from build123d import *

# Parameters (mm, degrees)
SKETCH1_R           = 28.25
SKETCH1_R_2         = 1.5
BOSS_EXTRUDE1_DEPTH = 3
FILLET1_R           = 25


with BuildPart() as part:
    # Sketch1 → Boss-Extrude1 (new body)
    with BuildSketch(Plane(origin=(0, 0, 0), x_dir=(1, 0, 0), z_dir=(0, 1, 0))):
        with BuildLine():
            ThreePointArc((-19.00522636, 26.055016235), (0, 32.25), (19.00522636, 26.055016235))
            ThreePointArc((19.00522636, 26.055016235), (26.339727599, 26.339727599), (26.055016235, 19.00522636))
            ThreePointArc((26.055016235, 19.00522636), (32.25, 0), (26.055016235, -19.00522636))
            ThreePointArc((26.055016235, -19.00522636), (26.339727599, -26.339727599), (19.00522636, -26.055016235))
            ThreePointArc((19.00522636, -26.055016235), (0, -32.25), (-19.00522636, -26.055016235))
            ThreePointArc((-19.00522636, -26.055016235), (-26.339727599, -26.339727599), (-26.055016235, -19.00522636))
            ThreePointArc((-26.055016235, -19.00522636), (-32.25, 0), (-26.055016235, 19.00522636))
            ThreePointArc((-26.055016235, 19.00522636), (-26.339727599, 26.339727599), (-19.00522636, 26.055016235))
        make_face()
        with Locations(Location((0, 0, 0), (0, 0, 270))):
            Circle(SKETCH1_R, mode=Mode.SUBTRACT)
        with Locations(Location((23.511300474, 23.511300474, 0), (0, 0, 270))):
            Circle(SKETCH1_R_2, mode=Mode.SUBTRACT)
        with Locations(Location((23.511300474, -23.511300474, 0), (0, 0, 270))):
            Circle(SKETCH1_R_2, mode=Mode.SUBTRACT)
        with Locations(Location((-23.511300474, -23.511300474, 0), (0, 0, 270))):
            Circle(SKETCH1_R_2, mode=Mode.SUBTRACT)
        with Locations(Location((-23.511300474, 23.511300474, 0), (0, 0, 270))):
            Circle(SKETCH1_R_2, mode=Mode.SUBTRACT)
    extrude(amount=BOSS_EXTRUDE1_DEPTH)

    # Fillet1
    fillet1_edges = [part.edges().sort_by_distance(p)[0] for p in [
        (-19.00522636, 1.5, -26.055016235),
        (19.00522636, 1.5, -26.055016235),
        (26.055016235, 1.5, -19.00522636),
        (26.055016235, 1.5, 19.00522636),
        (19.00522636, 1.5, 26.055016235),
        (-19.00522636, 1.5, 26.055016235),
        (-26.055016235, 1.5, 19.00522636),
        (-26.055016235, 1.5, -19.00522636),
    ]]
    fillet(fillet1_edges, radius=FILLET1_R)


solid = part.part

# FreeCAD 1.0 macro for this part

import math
import FreeCAD as App
import Part
import Sketcher

V = App.Vector
Q = App.Units.Quantity


def edges_at(feature, points):
    """Names of the edges that pass closest to the given points."""
    edges = feature.Shape.Edges
    near = lambda p: min(range(len(edges)), key=lambda i: edges[i].distToShape(Part.Vertex(*p))[0])
    return sorted({f"Edge{near(p) + 1}" for p in points})

doc = App.newDocument("Part")
body = doc.addObject("PartDesign::Body", "Body")

# Sketch on XZ plane
sketch1 = body.newObject("Sketcher::SketchObject", "Sketch")
sketch1.AttachmentSupport = (doc.getObject("XZ_Plane"), [""])
sketch1.MapMode = "FlatFace"
sketch1.addGeometry([
    Part.ArcOfCircle(Part.Circle(V(0, 0, 0), V(0, 0, 1), 32.2), math.radians(-126), math.radians(-54)),  # 0
    Part.ArcOfCircle(Part.Circle(V(-22.8, -22.8, 0), V(0, 0, 1), 5), math.radians(131), math.radians(319)),  # 1
    Part.ArcOfCircle(Part.Circle(V(0, 0, 0), V(0, 0, 1), 32.2), math.radians(144), math.radians(216)),  # 2
    Part.ArcOfCircle(Part.Circle(V(-22.8, 22.8, 0), V(0, 0, 1), 5), math.radians(41), math.radians(229)),  # 3
    Part.ArcOfCircle(Part.Circle(V(0, 0, 0), V(0, 0, 1), 32.2), math.radians(54), math.radians(126)),  # 4
    Part.ArcOfCircle(Part.Circle(V(22.8, 22.8, 0), V(0, 0, 1), 5), math.radians(-49), math.radians(139)),  # 5
    Part.ArcOfCircle(Part.Circle(V(0, 0, 0), V(0, 0, 1), 32.2), math.radians(-36), math.radians(36)),  # 6
    Part.ArcOfCircle(Part.Circle(V(22.8, -22.8, 0), V(0, 0, 1), 5), math.radians(-139), math.radians(49)),  # 7
    Part.Circle(V(23.5, 23.5, 0), V(0, 0, 1), 1.5),  # 8
    Part.Circle(V(-23.5, 23.5, 0), V(0, 0, 1), 1.5),  # 9
    Part.Circle(V(23.5, -23.5, 0), V(0, 0, 1), 1.5),  # 10
    Part.Circle(V(0, 0, 0), V(0, 0, 1), 28.2),  # 11
    Part.Circle(V(-23.5, -23.5, 0), V(0, 0, 1), 1.5),  # 12
], False)
sketch1.addConstraint([
    Sketcher.Constraint("Coincident", 0, 1, 1, 2),
    Sketcher.Constraint("Coincident", 1, 1, 2, 2),
    Sketcher.Constraint("Coincident", 2, 1, 3, 2),
    Sketcher.Constraint("Coincident", 3, 1, 4, 2),
    Sketcher.Constraint("Coincident", 4, 1, 5, 2),
    Sketcher.Constraint("Coincident", 5, 1, 6, 2),
    Sketcher.Constraint("Coincident", 6, 1, 7, 2),
    Sketcher.Constraint("Coincident", 7, 1, 0, 2),
    Sketcher.Constraint("Coincident", 0, 3, -1, 1),
    Sketcher.Constraint("Coincident", 2, 3, -1, 1),
    Sketcher.Constraint("Coincident", 4, 3, -1, 1),
    Sketcher.Constraint("Coincident", 6, 3, -1, 1),
    Sketcher.Constraint("Coincident", 11, 3, -1, 1),
    Sketcher.Constraint("Equal", 0, 2),
    Sketcher.Constraint("Equal", 1, 3),
    Sketcher.Constraint("Equal", 2, 4),
    Sketcher.Constraint("Equal", 3, 5),
    Sketcher.Constraint("Equal", 4, 6),
    Sketcher.Constraint("Equal", 5, 7),
    Sketcher.Constraint("Equal", 8, 9),
    Sketcher.Constraint("Equal", 9, 10),
    Sketcher.Constraint("Equal", 10, 12),
    Sketcher.Constraint("Symmetric", 1, 3, 5, 3, -1, 1),
    Sketcher.Constraint("Symmetric", 3, 3, 7, 3, -1, 1),
    Sketcher.Constraint("Symmetric", 9, 3, 10, 3, -1, 1),
    Sketcher.Constraint("Symmetric", 8, 3, 12, 3, -1, 1),
    Sketcher.Constraint("Symmetric", 3, 3, 5, 3, -2),
    Sketcher.Constraint("Symmetric", 8, 3, 9, 3, -2),
    Sketcher.Constraint("Diameter", 8, Q("3 mm")),
    Sketcher.Constraint("Radius", 1, Q("5 mm")),
    Sketcher.Constraint("Diameter", 11, Q("56.5 mm")),
    Sketcher.Constraint("Radius", 0, Q("32.25 mm")),
    Sketcher.Constraint("DistanceX", -1, 1, 8, 3, Q("23.5113 mm")),
    Sketcher.Constraint("DistanceY", -1, 1, 8, 3, Q("23.5113 mm")),
    Sketcher.Constraint("DistanceX", 1, 1, 0, 1, Q("7.04979 mm")),
    Sketcher.Constraint("DistanceY", 0, 1, 1, 1, Q("7.04979 mm")),
])
pad1 = body.newObject("PartDesign::Pad", "Pad")
pad1.Profile = sketch1
pad1.Length = 3
pad1.Reversed = True
doc.recompute()

fillet = body.newObject("PartDesign::Fillet", "Fillet")
fillet.Base = (pad1, edges_at(pad1, [
    (-19.005, 1.5, -26.055),
    (19.005, 1.5, -26.055),
    (26.055, 1.5, -19.005),
    (26.055, 1.5, 19.005),
    (19.005, 1.5, 26.055),
    (-19.005, 1.5, 26.055),
    (-26.055, 1.5, 19.005),
    (-26.055, 1.5, -19.005),
]))
fillet.Radius = 25

doc.recompute()
